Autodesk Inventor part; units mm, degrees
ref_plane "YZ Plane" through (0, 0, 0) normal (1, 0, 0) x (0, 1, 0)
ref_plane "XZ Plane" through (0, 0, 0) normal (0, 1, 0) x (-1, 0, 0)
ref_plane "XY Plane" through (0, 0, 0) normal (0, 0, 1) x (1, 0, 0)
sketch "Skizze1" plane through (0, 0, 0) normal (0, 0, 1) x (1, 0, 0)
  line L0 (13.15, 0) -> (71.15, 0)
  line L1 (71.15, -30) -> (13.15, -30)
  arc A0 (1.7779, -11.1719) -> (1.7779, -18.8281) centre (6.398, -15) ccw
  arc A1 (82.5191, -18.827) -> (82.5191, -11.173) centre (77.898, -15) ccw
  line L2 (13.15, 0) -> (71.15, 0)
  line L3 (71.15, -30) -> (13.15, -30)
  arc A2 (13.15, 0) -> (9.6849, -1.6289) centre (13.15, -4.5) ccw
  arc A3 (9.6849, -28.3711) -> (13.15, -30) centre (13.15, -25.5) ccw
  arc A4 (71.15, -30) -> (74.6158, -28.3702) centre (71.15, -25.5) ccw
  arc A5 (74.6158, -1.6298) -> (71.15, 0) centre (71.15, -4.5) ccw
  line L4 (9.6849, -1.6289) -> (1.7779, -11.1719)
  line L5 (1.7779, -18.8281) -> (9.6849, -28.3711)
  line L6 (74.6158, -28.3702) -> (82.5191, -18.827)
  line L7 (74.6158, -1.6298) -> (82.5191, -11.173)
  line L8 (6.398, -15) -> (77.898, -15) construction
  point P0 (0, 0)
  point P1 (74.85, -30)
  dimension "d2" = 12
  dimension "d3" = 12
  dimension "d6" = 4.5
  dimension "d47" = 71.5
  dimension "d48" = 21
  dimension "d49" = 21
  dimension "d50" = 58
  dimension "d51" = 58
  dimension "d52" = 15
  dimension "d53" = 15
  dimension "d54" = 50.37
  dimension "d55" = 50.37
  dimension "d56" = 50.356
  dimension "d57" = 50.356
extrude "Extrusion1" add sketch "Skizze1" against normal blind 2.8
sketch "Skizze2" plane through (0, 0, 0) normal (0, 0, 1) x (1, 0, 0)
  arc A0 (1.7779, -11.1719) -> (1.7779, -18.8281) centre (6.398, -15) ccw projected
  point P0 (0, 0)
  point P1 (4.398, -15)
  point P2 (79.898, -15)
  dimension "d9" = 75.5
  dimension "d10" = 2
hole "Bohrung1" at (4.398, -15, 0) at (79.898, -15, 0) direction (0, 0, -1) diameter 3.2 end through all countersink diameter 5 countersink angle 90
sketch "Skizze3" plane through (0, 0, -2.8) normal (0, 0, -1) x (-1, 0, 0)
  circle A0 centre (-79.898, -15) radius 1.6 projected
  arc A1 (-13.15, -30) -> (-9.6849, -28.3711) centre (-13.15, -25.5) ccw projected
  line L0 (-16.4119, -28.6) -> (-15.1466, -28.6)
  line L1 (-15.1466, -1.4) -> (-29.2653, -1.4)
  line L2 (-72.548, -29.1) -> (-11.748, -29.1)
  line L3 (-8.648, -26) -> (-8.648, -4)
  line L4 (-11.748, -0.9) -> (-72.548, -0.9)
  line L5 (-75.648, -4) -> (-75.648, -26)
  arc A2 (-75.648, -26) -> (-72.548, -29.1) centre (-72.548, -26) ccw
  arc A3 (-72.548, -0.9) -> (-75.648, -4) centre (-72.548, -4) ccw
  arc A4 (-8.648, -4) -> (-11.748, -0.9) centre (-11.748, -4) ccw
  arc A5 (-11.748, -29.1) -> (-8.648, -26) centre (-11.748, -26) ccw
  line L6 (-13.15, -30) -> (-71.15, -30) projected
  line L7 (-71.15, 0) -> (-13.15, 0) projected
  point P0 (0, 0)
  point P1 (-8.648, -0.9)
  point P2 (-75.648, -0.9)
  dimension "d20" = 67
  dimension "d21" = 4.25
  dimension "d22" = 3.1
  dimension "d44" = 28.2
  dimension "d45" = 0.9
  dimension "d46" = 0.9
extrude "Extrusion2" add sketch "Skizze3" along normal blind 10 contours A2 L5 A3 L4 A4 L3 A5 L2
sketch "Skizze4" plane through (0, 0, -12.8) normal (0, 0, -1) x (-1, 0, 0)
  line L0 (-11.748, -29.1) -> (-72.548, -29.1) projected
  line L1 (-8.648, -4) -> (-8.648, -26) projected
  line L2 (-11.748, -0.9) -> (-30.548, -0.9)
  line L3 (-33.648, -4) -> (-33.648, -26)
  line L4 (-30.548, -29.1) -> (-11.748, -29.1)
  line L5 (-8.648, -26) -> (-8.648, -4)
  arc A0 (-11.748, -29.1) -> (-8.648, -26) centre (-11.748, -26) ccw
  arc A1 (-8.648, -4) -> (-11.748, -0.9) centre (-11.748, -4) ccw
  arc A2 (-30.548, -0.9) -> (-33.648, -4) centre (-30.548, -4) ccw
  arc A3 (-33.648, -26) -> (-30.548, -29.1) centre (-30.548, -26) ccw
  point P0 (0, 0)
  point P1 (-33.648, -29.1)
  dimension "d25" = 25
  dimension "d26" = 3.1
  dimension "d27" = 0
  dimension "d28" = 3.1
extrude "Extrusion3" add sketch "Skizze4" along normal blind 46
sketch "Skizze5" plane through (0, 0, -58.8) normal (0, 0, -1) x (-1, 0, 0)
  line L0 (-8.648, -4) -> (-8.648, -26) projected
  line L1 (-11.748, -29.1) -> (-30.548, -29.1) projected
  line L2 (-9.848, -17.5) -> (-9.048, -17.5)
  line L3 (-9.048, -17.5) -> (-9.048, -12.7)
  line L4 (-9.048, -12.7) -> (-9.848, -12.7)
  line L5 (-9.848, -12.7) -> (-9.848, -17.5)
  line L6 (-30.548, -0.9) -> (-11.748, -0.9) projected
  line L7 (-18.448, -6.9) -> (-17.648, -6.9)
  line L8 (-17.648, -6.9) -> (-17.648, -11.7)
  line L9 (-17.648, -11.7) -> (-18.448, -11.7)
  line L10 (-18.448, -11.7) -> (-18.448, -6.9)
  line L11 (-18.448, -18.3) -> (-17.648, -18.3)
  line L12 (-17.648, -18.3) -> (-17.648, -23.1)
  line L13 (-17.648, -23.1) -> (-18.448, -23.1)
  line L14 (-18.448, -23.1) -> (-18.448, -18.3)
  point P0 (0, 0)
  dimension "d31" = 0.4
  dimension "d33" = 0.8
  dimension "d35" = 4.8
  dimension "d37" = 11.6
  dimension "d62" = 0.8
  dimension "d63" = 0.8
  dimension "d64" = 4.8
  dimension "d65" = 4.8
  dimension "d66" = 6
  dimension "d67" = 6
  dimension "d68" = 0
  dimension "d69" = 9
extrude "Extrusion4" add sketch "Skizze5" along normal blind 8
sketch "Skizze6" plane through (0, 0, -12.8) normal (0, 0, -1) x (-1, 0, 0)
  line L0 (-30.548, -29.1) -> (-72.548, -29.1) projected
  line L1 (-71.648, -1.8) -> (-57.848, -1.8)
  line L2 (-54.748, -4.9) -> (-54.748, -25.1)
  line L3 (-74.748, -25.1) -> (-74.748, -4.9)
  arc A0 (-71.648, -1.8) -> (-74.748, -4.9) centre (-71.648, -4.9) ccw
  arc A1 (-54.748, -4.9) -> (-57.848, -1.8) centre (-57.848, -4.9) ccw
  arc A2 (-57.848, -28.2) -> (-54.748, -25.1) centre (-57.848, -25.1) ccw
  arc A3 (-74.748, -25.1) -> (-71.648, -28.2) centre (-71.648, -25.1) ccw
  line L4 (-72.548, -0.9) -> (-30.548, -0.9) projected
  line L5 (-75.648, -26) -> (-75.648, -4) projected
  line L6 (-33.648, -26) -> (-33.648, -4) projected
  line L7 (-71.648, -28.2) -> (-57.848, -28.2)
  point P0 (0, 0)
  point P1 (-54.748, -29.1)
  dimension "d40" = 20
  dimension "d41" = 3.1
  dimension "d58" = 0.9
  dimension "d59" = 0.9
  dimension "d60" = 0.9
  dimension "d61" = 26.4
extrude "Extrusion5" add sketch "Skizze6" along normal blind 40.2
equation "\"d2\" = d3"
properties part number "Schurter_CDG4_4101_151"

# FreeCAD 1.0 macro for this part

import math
import FreeCAD as App
import Part
import Sketcher
Q = App.Units.Quantity

doc = App.newDocument("Part")
body = doc.addObject("PartDesign::Body", "Body")

sketch1 = doc.addObject("Sketcher::SketchObject", "Sketch")
body.addObject(sketch1)
sketch1.AttachmentSupport = (doc.XY_Plane, [""])
sketch1.MapMode = "FlatFace"
sketch1.addGeometry(Part.LineSegment(App.Vector(71.15, 0, 0), App.Vector(13.15, 0, 0)), False)
sketch1.addGeometry(Part.ArcOfCircle(Part.Circle(App.Vector(13.15, -4.5, 0), App.Vector(0, 0, 1), 4.5), math.radians(90), math.radians(140.355657)), False)
sketch1.addGeometry(Part.LineSegment(App.Vector(9.6849, -1.6289, 0), App.Vector(1.7779, -11.1719, 0)), False)
sketch1.addGeometry(Part.ArcOfCircle(Part.Circle(App.Vector(6.398, -15, 0), App.Vector(0, 0, 1), 5.999973), math.radians(140.355699), math.radians(219.644301)), False)
sketch1.addGeometry(Part.LineSegment(App.Vector(1.7779, -18.8281, 0), App.Vector(9.6849, -28.3711, 0)), False)
sketch1.addGeometry(Part.ArcOfCircle(Part.Circle(App.Vector(13.15, -25.5, 0), App.Vector(0, 0, 1), 4.500015), math.radians(-140.355657), math.radians(-90)), False)
sketch1.addGeometry(Part.LineSegment(App.Vector(13.15, -30, 0), App.Vector(71.15, -30, 0)), False)
sketch1.addGeometry(Part.ArcOfCircle(Part.Circle(App.Vector(71.15, -25.5, 0), App.Vector(0, 0, 1), 4.5), math.radians(-90), math.radians(-39.629833)), False)
sketch1.addGeometry(Part.LineSegment(App.Vector(74.6158, -28.3702, 0), App.Vector(82.5191, -18.827, 0)), False)
sketch1.addGeometry(Part.ArcOfCircle(Part.Circle(App.Vector(77.898, -15, 0), App.Vector(0, 0, 1), 6.000041), math.radians(-39.63012), math.radians(39.63012)), False)
sketch1.addGeometry(Part.LineSegment(App.Vector(82.5191, -11.173, 0), App.Vector(74.6158, -1.6298, 0)), False)
sketch1.addGeometry(Part.ArcOfCircle(Part.Circle(App.Vector(71.15, -4.5, 0), App.Vector(0, 0, 1), 4.49998), math.radians(39.629833), math.radians(90)), False)
sketch1.addConstraint(Sketcher.Constraint("Coincident", 0, 2, 1, 1))
sketch1.addConstraint(Sketcher.Constraint("Coincident", 1, 2, 2, 1))
sketch1.addConstraint(Sketcher.Constraint("Coincident", 2, 2, 3, 1))
sketch1.addConstraint(Sketcher.Constraint("Coincident", 3, 2, 4, 1))
sketch1.addConstraint(Sketcher.Constraint("Coincident", 4, 2, 5, 1))
sketch1.addConstraint(Sketcher.Constraint("Coincident", 5, 2, 6, 1))
sketch1.addConstraint(Sketcher.Constraint("Coincident", 6, 2, 7, 1))
sketch1.addConstraint(Sketcher.Constraint("Coincident", 7, 2, 8, 1))
sketch1.addConstraint(Sketcher.Constraint("Coincident", 8, 2, 9, 1))
sketch1.addConstraint(Sketcher.Constraint("Coincident", 9, 2, 10, 1))
sketch1.addConstraint(Sketcher.Constraint("Coincident", 10, 2, 11, 1))
sketch1.addConstraint(Sketcher.Constraint("Coincident", 11, 2, 0, 1))
sketch1.addConstraint(Sketcher.Constraint("Horizontal", 0))
sketch1.addConstraint(Sketcher.Constraint("Horizontal", 6))
sketch1.addConstraint(Sketcher.Constraint("PointOnObject", 0, 2, -1))
sketch1.addConstraint(Sketcher.Constraint("Radius", 3, Q("6 mm")))
sketch1.addConstraint(Sketcher.Constraint("Radius", 9, Q("6 mm")))
sketch1.addConstraint(Sketcher.Constraint("Radius", 1, Q("4.5 mm")))
sketch1.addConstraint(Sketcher.Constraint("Radius", 5, Q("4.5 mm")))
sketch1.addConstraint(Sketcher.Constraint("Radius", 7, Q("4.5 mm")))
sketch1.addConstraint(Sketcher.Constraint("Radius", 11, Q("4.5 mm")))
sketch1.addConstraint(Sketcher.Constraint("DistanceX", 0, 2, 0, 1, Q("58 mm")))
sketch1.addConstraint(Sketcher.Constraint("DistanceX", 6, 1, 6, 2, Q("58 mm")))
sketch1.addConstraint(Sketcher.Constraint("DistanceY", 3, 3, -1, 1, Q("15 mm")))
sketch1.addConstraint(Sketcher.Constraint("DistanceY", 9, 3, -1, 1, Q("15 mm")))
sketch1.addConstraint(Sketcher.Constraint("DistanceY", 5, 3, 1, 3, Q("21 mm")))
sketch1.addConstraint(Sketcher.Constraint("DistanceX", 5, 3, 7, 3, Q("58 mm")))
sketch1.addConstraint(Sketcher.Constraint("DistanceX", 1, 3, 7, 3, Q("58 mm")))
sketch1.addConstraint(Sketcher.Constraint("DistanceX", 1, 3, 11, 3, Q("58 mm")))
sketch1.addConstraint(Sketcher.Constraint("DistanceX", 0, 2, 11, 3, Q("58 mm")))
sketch1.addConstraint(Sketcher.Constraint("DistanceX", 5, 3, 6, 2, Q("58 mm")))
sketch1.addConstraint(Sketcher.Constraint("DistanceX", 3, 3, 9, 3, Q("71.5 mm")))
sketch1.addConstraint(Sketcher.Constraint("DistanceX", -1, 1, 1, 3, Q("13.15 mm")))
sketch1.addConstraint(Sketcher.Constraint("DistanceX", 2, 2, 3, 3, Q("4.62 mm")))
sketch1.addConstraint(Sketcher.Constraint("DistanceX", 3, 2, 3, 3, Q("4.62 mm")))
sketch1.addConstraint(Sketcher.Constraint("Distance", 8, Q("12.391 mm")))
sketch1.addConstraint(Sketcher.Constraint("Distance", 10, Q("12.391 mm")))
sketch1.addConstraint(Sketcher.Constraint("DistanceX", -1, 1, 3, 3, Q("6.398 mm")))
sketch1.addConstraint(Sketcher.Constraint("DistanceX", -1, 1, 1, 2, Q("9.685 mm")))
sketch1.addConstraint(Sketcher.Constraint("DistanceX", -1, 1, 4, 2, Q("9.685 mm")))
sketch1.addConstraint(Sketcher.Constraint("DistanceX", -1, 1, 8, 2, Q("82.519 mm")))
sketch1.addConstraint(Sketcher.Constraint("DistanceX", -1, 1, 9, 2, Q("82.519 mm")))
pad1 = doc.addObject("PartDesign::Pad", "Pad")
body.addObject(pad1)
pad1.Profile = sketch1
pad1.Length = 2.8
pad1.Reversed = True

sketch2 = doc.addObject("Sketcher::SketchObject", "Sketch001")
body.addObject(sketch2)
sketch2.AttachmentSupport = (doc.XY_Plane, [""])
sketch2.MapMode = "FlatFace"
sketch2.addGeometry(Part.Circle(App.Vector(4.4, -15, 0), App.Vector(0, 0, 1), 1.6), False)
sketch2.addGeometry(Part.Circle(App.Vector(79.9, -15, 0), App.Vector(0, 0, 1), 1.6), False)
sketch2.addConstraint(Sketcher.Constraint("Equal", 0, 1))
sketch2.addConstraint(Sketcher.Constraint("Horizontal", 0, 3, 1, 3))
sketch2.addConstraint(Sketcher.Constraint("Diameter", 0, Q("3.2 mm")))
sketch2.addConstraint(Sketcher.Constraint("DistanceY", 0, 3, -1, 1, Q("15 mm")))
sketch2.addConstraint(Sketcher.Constraint("DistanceX", 0, 3, 1, 3, Q("75.5 mm")))
sketch2.addConstraint(Sketcher.Constraint("DistanceX", -1, 1, 0, 3, Q("4.398 mm")))
doc.recompute()
hole = doc.addObject("PartDesign::Hole", "Hole")
body.addObject(hole)
hole.Profile = sketch2
hole.ThreadType = "None"
hole.Diameter = 3.2
hole.DepthType = "ThroughAll"
hole.HoleCutType = "Countersink"
hole.HoleCutDiameter = 5
hole.HoleCutCountersinkAngle = 90

sketch3 = doc.addObject("Sketcher::SketchObject", "Sketch002")
body.addObject(sketch3)
sketch3.AttachmentSupport = (doc.XY_Plane, [""])
sketch3.MapMode = "FlatFace"
sketch3.AttachmentOffset = App.Placement(App.Vector(0, 0, -2.8), App.Rotation())
sketch3.addGeometry(Part.ArcOfCircle(Part.Circle(App.Vector(72.5, -26, 0), App.Vector(0, 0, 1), 3.1), math.radians(-90), math.radians(0)), False)
sketch3.addGeometry(Part.LineSegment(App.Vector(72.5, -29.1, 0), App.Vector(11.7, -29.1, 0)), False)
sketch3.addGeometry(Part.ArcOfCircle(Part.Circle(App.Vector(11.7, -26, 0), App.Vector(0, 0, 1), 3.1), math.radians(180), math.radians(270)), False)
sketch3.addGeometry(Part.LineSegment(App.Vector(8.6, -26, 0), App.Vector(8.6, -4, 0)), False)
sketch3.addGeometry(Part.ArcOfCircle(Part.Circle(App.Vector(11.7, -4, 0), App.Vector(0, 0, 1), 3.1), math.radians(90), math.radians(180)), False)
sketch3.addGeometry(Part.LineSegment(App.Vector(11.7, -0.9, 0), App.Vector(72.5, -0.9, 0)), False)
sketch3.addGeometry(Part.ArcOfCircle(Part.Circle(App.Vector(72.5, -4, 0), App.Vector(0, 0, 1), 3.1), math.radians(0), math.radians(90)), False)
sketch3.addGeometry(Part.LineSegment(App.Vector(75.6, -4, 0), App.Vector(75.6, -26, 0)), False)
sketch3.addConstraint(Sketcher.Constraint("Tangent", 0, 1, 1, 1))
sketch3.addConstraint(Sketcher.Constraint("Tangent", 1, 2, 2, 2))
sketch3.addConstraint(Sketcher.Constraint("Tangent", 2, 1, 3, 1))
sketch3.addConstraint(Sketcher.Constraint("Tangent", 3, 2, 4, 2))
sketch3.addConstraint(Sketcher.Constraint("Tangent", 4, 1, 5, 1))
sketch3.addConstraint(Sketcher.Constraint("Tangent", 5, 2, 6, 2))
sketch3.addConstraint(Sketcher.Constraint("Tangent", 6, 1, 7, 1))
sketch3.addConstraint(Sketcher.Constraint("Tangent", 7, 2, 0, 2))
sketch3.addConstraint(Sketcher.Constraint("Horizontal", 1))
sketch3.addConstraint(Sketcher.Constraint("Vertical", 3))
sketch3.addConstraint(Sketcher.Constraint("Horizontal", 5))
sketch3.addConstraint(Sketcher.Constraint("Vertical", 7))
sketch3.addConstraint(Sketcher.Constraint("Equal", 0, 2))
sketch3.addConstraint(Sketcher.Constraint("Equal", 2, 4))
sketch3.addConstraint(Sketcher.Constraint("Equal", 4, 6))
sketch3.addConstraint(Sketcher.Constraint("Radius", 0, Q("3.1 mm")))
sketch3.addConstraint(Sketcher.Constraint("DistanceY", 4, 1, -1, 1, Q("0.9 mm")))
sketch3.addConstraint(Sketcher.Constraint("DistanceY", 1, 2, 4, 1, Q("28.2 mm")))
sketch3.addConstraint(Sketcher.Constraint("DistanceX", 1, 2, 1, 1, Q("60.8 mm")))
sketch3.addConstraint(Sketcher.Constraint("DistanceX", -1, 1, 0, 3, Q("72.548 mm")))
pad2 = doc.addObject("PartDesign::Pad", "Pad001")
body.addObject(pad2)
pad2.Profile = sketch3
pad2.Length = 10
pad2.Reversed = True

sketch4 = doc.addObject("Sketcher::SketchObject", "Sketch003")
body.addObject(sketch4)
sketch4.AttachmentSupport = (doc.XY_Plane, [""])
sketch4.MapMode = "FlatFace"
sketch4.AttachmentOffset = App.Placement(App.Vector(0, 0, -12.8), App.Rotation())
sketch4.addGeometry(Part.LineSegment(App.Vector(30.5, -29.1, 0), App.Vector(11.7, -29.1, 0)), False)
sketch4.addGeometry(Part.ArcOfCircle(Part.Circle(App.Vector(11.7, -26, 0), App.Vector(0, 0, 1), 3.1), math.radians(180), math.radians(270)), False)
sketch4.addGeometry(Part.LineSegment(App.Vector(8.6, -26, 0), App.Vector(8.6, -4, 0)), False)
sketch4.addGeometry(Part.ArcOfCircle(Part.Circle(App.Vector(11.7, -4, 0), App.Vector(0, 0, 1), 3.1), math.radians(90), math.radians(180)), False)
sketch4.addGeometry(Part.LineSegment(App.Vector(11.7, -0.9, 0), App.Vector(30.5, -0.9, 0)), False)
sketch4.addGeometry(Part.ArcOfCircle(Part.Circle(App.Vector(30.5, -4, 0), App.Vector(0, 0, 1), 3.1), math.radians(0), math.radians(90)), False)
sketch4.addGeometry(Part.LineSegment(App.Vector(33.6, -4, 0), App.Vector(33.6, -26, 0)), False)
sketch4.addGeometry(Part.ArcOfCircle(Part.Circle(App.Vector(30.5, -26, 0), App.Vector(0, 0, 1), 3.1), math.radians(-90), math.radians(0)), False)
sketch4.addConstraint(Sketcher.Constraint("Tangent", 0, 2, 1, 2))
sketch4.addConstraint(Sketcher.Constraint("Tangent", 1, 1, 2, 1))
sketch4.addConstraint(Sketcher.Constraint("Tangent", 2, 2, 3, 2))
sketch4.addConstraint(Sketcher.Constraint("Tangent", 3, 1, 4, 1))
sketch4.addConstraint(Sketcher.Constraint("Tangent", 4, 2, 5, 2))
sketch4.addConstraint(Sketcher.Constraint("Tangent", 5, 1, 6, 1))
sketch4.addConstraint(Sketcher.Constraint("Tangent", 6, 2, 7, 2))
sketch4.addConstraint(Sketcher.Constraint("Tangent", 7, 1, 0, 1))
sketch4.addConstraint(Sketcher.Constraint("Horizontal", 0))
sketch4.addConstraint(Sketcher.Constraint("Vertical", 2))
sketch4.addConstraint(Sketcher.Constraint("Horizontal", 4))
sketch4.addConstraint(Sketcher.Constraint("Vertical", 6))
sketch4.addConstraint(Sketcher.Constraint("Equal", 1, 3))
sketch4.addConstraint(Sketcher.Constraint("Equal", 3, 5))
sketch4.addConstraint(Sketcher.Constraint("Equal", 5, 7))
sketch4.addConstraint(Sketcher.Constraint("Radius", 1, Q("3.1 mm")))
sketch4.addConstraint(Sketcher.Constraint("DistanceY", 2, 1, 2, 2, Q("22 mm")))
sketch4.addConstraint(Sketcher.Constraint("DistanceX", 0, 2, 0, 1, Q("18.8 mm")))
sketch4.addConstraint(Sketcher.Constraint("DistanceY", 1, 3, -1, 1, Q("26 mm")))
sketch4.addConstraint(Sketcher.Constraint("DistanceX", -1, 1, 1, 3, Q("11.748 mm")))
pad3 = doc.addObject("PartDesign::Pad", "Pad002")
body.addObject(pad3)
pad3.Profile = sketch4
pad3.Length = 46
pad3.Reversed = True

sketch5 = doc.addObject("Sketcher::SketchObject", "Sketch004")
body.addObject(sketch5)
sketch5.AttachmentSupport = (doc.XY_Plane, [""])
sketch5.MapMode = "FlatFace"
sketch5.AttachmentOffset = App.Placement(App.Vector(0, 0, -58.8), App.Rotation())
sketch5.addGeometry(Part.LineSegment(App.Vector(9.8, -12.7, 0), App.Vector(9.8, -17.5, 0)), False)
sketch5.addGeometry(Part.LineSegment(App.Vector(9.8, -17.5, 0), App.Vector(9, -17.5, 0)), False)
sketch5.addGeometry(Part.LineSegment(App.Vector(9, -17.5, 0), App.Vector(9, -12.7, 0)), False)
sketch5.addGeometry(Part.LineSegment(App.Vector(9, -12.7, 0), App.Vector(9.8, -12.7, 0)), False)
sketch5.addGeometry(Part.LineSegment(App.Vector(17.6, -6.9, 0), App.Vector(18.4, -6.9, 0)), False)
sketch5.addGeometry(Part.LineSegment(App.Vector(18.4, -6.9, 0), App.Vector(18.4, -11.7, 0)), False)
sketch5.addGeometry(Part.LineSegment(App.Vector(18.4, -11.7, 0), App.Vector(17.6, -11.7, 0)), False)
sketch5.addGeometry(Part.LineSegment(App.Vector(17.6, -11.7, 0), App.Vector(17.6, -6.9, 0)), False)
sketch5.addGeometry(Part.LineSegment(App.Vector(17.6, -18.3, 0), App.Vector(18.4, -18.3, 0)), False)
sketch5.addGeometry(Part.LineSegment(App.Vector(18.4, -18.3, 0), App.Vector(18.4, -23.1, 0)), False)
sketch5.addGeometry(Part.LineSegment(App.Vector(18.4, -23.1, 0), App.Vector(17.6, -23.1, 0)), False)
sketch5.addGeometry(Part.LineSegment(App.Vector(17.6, -23.1, 0), App.Vector(17.6, -18.3, 0)), False)
sketch5.addConstraint(Sketcher.Constraint("Coincident", 0, 2, 1, 1))
sketch5.addConstraint(Sketcher.Constraint("Coincident", 1, 2, 2, 1))
sketch5.addConstraint(Sketcher.Constraint("Coincident", 2, 2, 3, 1))
sketch5.addConstraint(Sketcher.Constraint("Coincident", 3, 2, 0, 1))
sketch5.addConstraint(Sketcher.Constraint("Coincident", 4, 2, 5, 1))
sketch5.addConstraint(Sketcher.Constraint("Coincident", 5, 2, 6, 1))
sketch5.addConstraint(Sketcher.Constraint("Coincident", 6, 2, 7, 1))
sketch5.addConstraint(Sketcher.Constraint("Coincident", 7, 2, 4, 1))
sketch5.addConstraint(Sketcher.Constraint("Coincident", 8, 2, 9, 1))
sketch5.addConstraint(Sketcher.Constraint("Coincident", 9, 2, 10, 1))
sketch5.addConstraint(Sketcher.Constraint("Coincident", 10, 2, 11, 1))
sketch5.addConstraint(Sketcher.Constraint("Coincident", 11, 2, 8, 1))
sketch5.addConstraint(Sketcher.Constraint("Vertical", 0))
sketch5.addConstraint(Sketcher.Constraint("Horizontal", 1))
sketch5.addConstraint(Sketcher.Constraint("Vertical", 2))
sketch5.addConstraint(Sketcher.Constraint("Horizontal", 3))
sketch5.addConstraint(Sketcher.Constraint("Horizontal", 4))
sketch5.addConstraint(Sketcher.Constraint("Vertical", 5))
sketch5.addConstraint(Sketcher.Constraint("Horizontal", 6))
sketch5.addConstraint(Sketcher.Constraint("Vertical", 7))
sketch5.addConstraint(Sketcher.Constraint("Horizontal", 8))
sketch5.addConstraint(Sketcher.Constraint("Vertical", 9))
sketch5.addConstraint(Sketcher.Constraint("Horizontal", 10))
sketch5.addConstraint(Sketcher.Constraint("Vertical", 11))
sketch5.addConstraint(Sketcher.Constraint("Vertical", 5, 2, 8, 2))
sketch5.addConstraint(Sketcher.Constraint("Vertical", 7, 2, 10, 2))
sketch5.addConstraint(Sketcher.Constraint("Equal", 3, 4))
sketch5.addConstraint(Sketcher.Constraint("Equal", 2, 5))
sketch5.addConstraint(Sketcher.Constraint("Equal", 7, 9))
sketch5.addConstraint(Sketcher.Constraint("DistanceX", 1, 2, 1, 1, Q("0.8 mm")))
sketch5.addConstraint(Sketcher.Constraint("DistanceY", 0, 2, 0, 1, Q("4.8 mm")))
sketch5.addConstraint(Sketcher.Constraint("DistanceY", 8, 2, 0, 2, Q("0.8 mm")))
sketch5.addConstraint(Sketcher.Constraint("DistanceY", 3, 2, 5, 2, Q("1 mm")))
sketch5.addConstraint(Sketcher.Constraint("DistanceY", 0, 2, -1, 1, Q("17.5 mm")))
sketch5.addConstraint(Sketcher.Constraint("DistanceX", 3, 2, 4, 2, Q("8.6 mm")))
sketch5.addConstraint(Sketcher.Constraint("DistanceX", -1, 1, 0, 2, Q("9.848 mm")))
pad4 = doc.addObject("PartDesign::Pad", "Pad003")
body.addObject(pad4)
pad4.Profile = sketch5
pad4.Length = 8
pad4.Reversed = True

sketch6 = doc.addObject("Sketcher::SketchObject", "Sketch005")
body.addObject(sketch6)
sketch6.AttachmentSupport = (doc.XY_Plane, [""])
sketch6.MapMode = "FlatFace"
sketch6.AttachmentOffset = App.Placement(App.Vector(0, 0, -12.8), App.Rotation())
sketch6.addGeometry(Part.LineSegment(App.Vector(57.8, -1.8, 0), App.Vector(71.6, -1.8, 0)), False)
sketch6.addGeometry(Part.ArcOfCircle(Part.Circle(App.Vector(71.6, -4.9, 0), App.Vector(0, 0, 1), 3.1), math.radians(0), math.radians(90)), False)
sketch6.addGeometry(Part.LineSegment(App.Vector(74.7, -4.9, 0), App.Vector(74.7, -25.1, 0)), False)
sketch6.addGeometry(Part.ArcOfCircle(Part.Circle(App.Vector(71.6, -25.1, 0), App.Vector(0, 0, 1), 3.1), math.radians(-90), math.radians(0)), False)
sketch6.addGeometry(Part.LineSegment(App.Vector(71.6, -28.2, 0), App.Vector(57.8, -28.2, 0)), False)
sketch6.addGeometry(Part.ArcOfCircle(Part.Circle(App.Vector(57.8, -25.1, 0), App.Vector(0, 0, 1), 3.1), math.radians(180), math.radians(270)), False)
sketch6.addGeometry(Part.LineSegment(App.Vector(54.7, -25.1, 0), App.Vector(54.7, -4.9, 0)), False)
sketch6.addGeometry(Part.ArcOfCircle(Part.Circle(App.Vector(57.8, -4.9, 0), App.Vector(0, 0, 1), 3.1), math.radians(90), math.radians(180)), False)
sketch6.addConstraint(Sketcher.Constraint("Tangent", 0, 2, 1, 2))
sketch6.addConstraint(Sketcher.Constraint("Tangent", 1, 1, 2, 1))
sketch6.addConstraint(Sketcher.Constraint("Tangent", 2, 2, 3, 2))
sketch6.addConstraint(Sketcher.Constraint("Tangent", 3, 1, 4, 1))
sketch6.addConstraint(Sketcher.Constraint("Tangent", 4, 2, 5, 2))
sketch6.addConstraint(Sketcher.Constraint("Tangent", 5, 1, 6, 1))
sketch6.addConstraint(Sketcher.Constraint("Tangent", 6, 2, 7, 2))
sketch6.addConstraint(Sketcher.Constraint("Tangent", 7, 1, 0, 1))
sketch6.addConstraint(Sketcher.Constraint("Horizontal", 0))
sketch6.addConstraint(Sketcher.Constraint("Vertical", 2))
sketch6.addConstraint(Sketcher.Constraint("Horizontal", 4))
sketch6.addConstraint(Sketcher.Constraint("Vertical", 6))
sketch6.addConstraint(Sketcher.Constraint("Equal", 1, 3))
sketch6.addConstraint(Sketcher.Constraint("Equal", 3, 5))
sketch6.addConstraint(Sketcher.Constraint("Equal", 5, 7))
sketch6.addConstraint(Sketcher.Constraint("Radius", 1, Q("3.1 mm")))
sketch6.addConstraint(Sketcher.Constraint("DistanceX", 5, 1, 2, 2, Q("20 mm")))
sketch6.addConstraint(Sketcher.Constraint("DistanceY", 2, 2, 2, 1, Q("20.2 mm")))
sketch6.addConstraint(Sketcher.Constraint("DistanceY", 1, 3, -1, 1, Q("4.9 mm")))
sketch6.addConstraint(Sketcher.Constraint("DistanceX", -1, 1, 1, 3, Q("71.648 mm")))
pad5 = doc.addObject("PartDesign::Pad", "Pad004")
body.addObject(pad5)
pad5.Profile = sketch6
pad5.Length = 40.2
pad5.Reversed = True

doc.recompute()
